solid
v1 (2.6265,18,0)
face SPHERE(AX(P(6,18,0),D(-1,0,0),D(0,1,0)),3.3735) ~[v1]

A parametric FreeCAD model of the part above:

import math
import FreeCAD as App
import Part
import Sketcher

V = App.Vector
Q = App.Units.Quantity

doc = App.newDocument("Part")
body = doc.addObject("PartDesign::Body", "Body")

sketch1 = body.newObject("Sketcher::SketchObject", "Sketch")
sketch1.AttachmentSupport = (doc.getObject("XY_Plane"), [""])
sketch1.MapMode = "FlatFace"
sketch1.addGeometry([
    Part.LineSegment(V(2.6, 18, 0), V(9.4, 18, 0)),
    Part.ArcOfCircle(Part.Circle(V(6, 18, 0), V(0, 0, 1), 3.4), math.radians(0), math.radians(180)),
], False)
sketch1.addGeometry(Part.LineSegment(V(2.6, 18, 0), V(9.4, 18, 0)), True)
sketch1.addConstraint([
    Sketcher.Constraint("Coincident", 0, 1, 1, 2),
    Sketcher.Constraint("Coincident", 1, 1, 0, 2),
    Sketcher.Constraint("Horizontal", 0),
    Sketcher.Constraint("Horizontal", 2),
    Sketcher.Constraint("Coincident", 2, 1, 0, 1),
    Sketcher.Constraint("Horizontal", 1, 3, 0, 1),
    Sketcher.Constraint("Equal", 0, 2),
    Sketcher.Constraint("DistanceX", 0, 1, 0, 2, Q("0.2656299 in")),
    Sketcher.Constraint("DistanceX", -1, 1, 0, 1, Q("0.1034 in")),
    Sketcher.Constraint("DistanceY", -1, 1, 1, 3, Q("18 mm")),
])
revolution = body.newObject("PartDesign::Revolution", "Revolution")
revolution.Profile = sketch1
revolution.ReferenceAxis = (sketch1, ["Axis0"])
revolution.Angle = 360

doc.recompute()
